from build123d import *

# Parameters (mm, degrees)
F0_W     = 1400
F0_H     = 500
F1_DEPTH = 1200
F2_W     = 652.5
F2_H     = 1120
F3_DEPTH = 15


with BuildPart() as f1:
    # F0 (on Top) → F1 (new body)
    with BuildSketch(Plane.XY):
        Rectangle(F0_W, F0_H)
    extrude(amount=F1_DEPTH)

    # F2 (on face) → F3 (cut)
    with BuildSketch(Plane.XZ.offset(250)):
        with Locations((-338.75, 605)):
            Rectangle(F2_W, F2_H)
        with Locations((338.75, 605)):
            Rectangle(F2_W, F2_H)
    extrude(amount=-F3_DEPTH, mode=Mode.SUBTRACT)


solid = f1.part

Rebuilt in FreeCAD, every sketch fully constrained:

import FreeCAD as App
import Part
import Sketcher

V = App.Vector


def add_polygon(sketch, points):
    """Adds a closed chain of lines whose ends are joined by coincident constraints."""
    first, n = sketch.GeometryCount, len(points)
    for a, b in zip(points, points[1:] + points[:1]):
        sketch.addGeometry(Part.LineSegment(App.Vector(*a, 0), App.Vector(*b, 0)), False)
    for i in range(n):
        sketch.addConstraint(Sketcher.Constraint("Coincident", first + i, 2, first + (i + 1) % n, 1))

doc = App.newDocument("Part")
body = doc.addObject("PartDesign::Body", "Body")

# Sketch on XY plane
sketch1 = body.newObject("Sketcher::SketchObject", "Sketch")
sketch1.AttachmentSupport = (doc.getObject("XY_Plane"), [""])
sketch1.MapMode = "FlatFace"
add_polygon(sketch1, [(-700, 250), (-700, -250), (700, -250), (700, 250)])  # lines 0-3
sketch1.addConstraint(Sketcher.Constraint("Vertical", 0))
sketch1.addConstraint(Sketcher.Constraint("Horizontal", 1))
sketch1.addConstraint(Sketcher.Constraint("Vertical", 2))
sketch1.addConstraint(Sketcher.Constraint("Horizontal", 3))
sketch1.addConstraint(Sketcher.Constraint("Symmetric", 0, 2, 2, 2, -1, 1))
sketch1.addConstraint(Sketcher.Constraint("DistanceX", 1, 1, 1, 2, 1400.0))
sketch1.addConstraint(Sketcher.Constraint("DistanceY", 0, 2, 0, 1, 500.0))
pad1 = body.newObject("PartDesign::Pad", "Pad")
pad1.Profile = sketch1
pad1.Length = 1200

# Sketch on XZ plane
sketch2 = body.newObject("Sketcher::SketchObject", "Sketch001")
sketch2.AttachmentSupport = (doc.getObject("XZ_Plane"), [""])
sketch2.MapMode = "FlatFace"
sketch2.AttachmentOffset = App.Placement(V(0, 0, 250), App.Rotation())
add_polygon(sketch2, [(-665, 1165), (-665, 45), (-12.5, 45), (-12.5, 1165)])  # lines 0-3
add_polygon(sketch2, [(12.5, 1165), (12.5, 45), (665, 45), (665, 1165)])  # lines 4-7
sketch2.addConstraint(Sketcher.Constraint("Vertical", 0))
sketch2.addConstraint(Sketcher.Constraint("Horizontal", 1))
sketch2.addConstraint(Sketcher.Constraint("Vertical", 2))
sketch2.addConstraint(Sketcher.Constraint("Horizontal", 3))
sketch2.addConstraint(Sketcher.Constraint("Vertical", 4))
sketch2.addConstraint(Sketcher.Constraint("Horizontal", 5))
sketch2.addConstraint(Sketcher.Constraint("Vertical", 6))
sketch2.addConstraint(Sketcher.Constraint("Horizontal", 7))
sketch2.addConstraint(Sketcher.Constraint("Symmetric", 1, 2, 4, 2, -2))
sketch2.addConstraint(Sketcher.Constraint("Symmetric", 3, 2, 6, 2, -2))
sketch2.addConstraint(Sketcher.Constraint("DistanceY", 0, 2, 0, 1, 1120.0))
sketch2.addConstraint(Sketcher.Constraint("DistanceX", 1, 1, 1, 2, 652.5))
sketch2.addConstraint(Sketcher.Constraint("DistanceX", 0, 2, -1, 1, 665.0))
sketch2.addConstraint(Sketcher.Constraint("DistanceY", -1, 1, 0, 2, 45.0))
pocket1 = body.newObject("PartDesign::Pocket", "Pocket")
pocket1.Profile = sketch2
pocket1.Length = 15

doc.recompute()
